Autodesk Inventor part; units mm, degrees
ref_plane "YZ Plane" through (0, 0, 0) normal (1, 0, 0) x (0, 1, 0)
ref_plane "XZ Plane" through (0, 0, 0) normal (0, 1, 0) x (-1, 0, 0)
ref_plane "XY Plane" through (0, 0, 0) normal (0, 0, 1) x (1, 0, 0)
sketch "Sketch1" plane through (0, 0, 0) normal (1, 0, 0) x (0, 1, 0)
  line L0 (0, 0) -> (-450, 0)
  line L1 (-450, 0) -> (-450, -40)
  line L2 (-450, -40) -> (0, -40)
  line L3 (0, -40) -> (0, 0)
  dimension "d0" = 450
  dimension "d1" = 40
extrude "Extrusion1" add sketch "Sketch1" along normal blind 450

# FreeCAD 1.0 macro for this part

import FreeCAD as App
import Part
import Sketcher

V = App.Vector


def add_polygon(sketch, points):
    """Adds a closed chain of lines whose ends are joined by coincident constraints."""
    first, n = sketch.GeometryCount, len(points)
    for a, b in zip(points, points[1:] + points[:1]):
        sketch.addGeometry(Part.LineSegment(App.Vector(*a, 0), App.Vector(*b, 0)), False)
    for i in range(n):
        sketch.addConstraint(Sketcher.Constraint("Coincident", first + i, 2, first + (i + 1) % n, 1))

doc = App.newDocument("Part")
body = doc.addObject("PartDesign::Body", "Body")

# Sketch on YZ plane
sketch1 = doc.addObject("Sketcher::SketchObject", "Sketch")
body.addObject(sketch1)
sketch1.AttachmentSupport = (doc.YZ_Plane, [""])
sketch1.MapMode = "FlatFace"
add_polygon(sketch1, [(0, -40), (0, 0), (-450, 0), (-450, -40)])  # lines 0-3
sketch1.addConstraint([
    Sketcher.Constraint("Vertical", 0),
    Sketcher.Constraint("Horizontal", 1),
    Sketcher.Constraint("Vertical", 2),
    Sketcher.Constraint("Horizontal", 3),
    Sketcher.Constraint("Coincident", 0, 2, -1, 1),
    Sketcher.Constraint("DistanceX", 1, 2, 1, 1, 450.0),
    Sketcher.Constraint("DistanceY", 0, 1, 0, 2, 40.0),
])
pad1 = doc.addObject("PartDesign::Pad", "Pad")
body.addObject(pad1)
pad1.Profile = sketch1
pad1.Length = 450

doc.recompute()
